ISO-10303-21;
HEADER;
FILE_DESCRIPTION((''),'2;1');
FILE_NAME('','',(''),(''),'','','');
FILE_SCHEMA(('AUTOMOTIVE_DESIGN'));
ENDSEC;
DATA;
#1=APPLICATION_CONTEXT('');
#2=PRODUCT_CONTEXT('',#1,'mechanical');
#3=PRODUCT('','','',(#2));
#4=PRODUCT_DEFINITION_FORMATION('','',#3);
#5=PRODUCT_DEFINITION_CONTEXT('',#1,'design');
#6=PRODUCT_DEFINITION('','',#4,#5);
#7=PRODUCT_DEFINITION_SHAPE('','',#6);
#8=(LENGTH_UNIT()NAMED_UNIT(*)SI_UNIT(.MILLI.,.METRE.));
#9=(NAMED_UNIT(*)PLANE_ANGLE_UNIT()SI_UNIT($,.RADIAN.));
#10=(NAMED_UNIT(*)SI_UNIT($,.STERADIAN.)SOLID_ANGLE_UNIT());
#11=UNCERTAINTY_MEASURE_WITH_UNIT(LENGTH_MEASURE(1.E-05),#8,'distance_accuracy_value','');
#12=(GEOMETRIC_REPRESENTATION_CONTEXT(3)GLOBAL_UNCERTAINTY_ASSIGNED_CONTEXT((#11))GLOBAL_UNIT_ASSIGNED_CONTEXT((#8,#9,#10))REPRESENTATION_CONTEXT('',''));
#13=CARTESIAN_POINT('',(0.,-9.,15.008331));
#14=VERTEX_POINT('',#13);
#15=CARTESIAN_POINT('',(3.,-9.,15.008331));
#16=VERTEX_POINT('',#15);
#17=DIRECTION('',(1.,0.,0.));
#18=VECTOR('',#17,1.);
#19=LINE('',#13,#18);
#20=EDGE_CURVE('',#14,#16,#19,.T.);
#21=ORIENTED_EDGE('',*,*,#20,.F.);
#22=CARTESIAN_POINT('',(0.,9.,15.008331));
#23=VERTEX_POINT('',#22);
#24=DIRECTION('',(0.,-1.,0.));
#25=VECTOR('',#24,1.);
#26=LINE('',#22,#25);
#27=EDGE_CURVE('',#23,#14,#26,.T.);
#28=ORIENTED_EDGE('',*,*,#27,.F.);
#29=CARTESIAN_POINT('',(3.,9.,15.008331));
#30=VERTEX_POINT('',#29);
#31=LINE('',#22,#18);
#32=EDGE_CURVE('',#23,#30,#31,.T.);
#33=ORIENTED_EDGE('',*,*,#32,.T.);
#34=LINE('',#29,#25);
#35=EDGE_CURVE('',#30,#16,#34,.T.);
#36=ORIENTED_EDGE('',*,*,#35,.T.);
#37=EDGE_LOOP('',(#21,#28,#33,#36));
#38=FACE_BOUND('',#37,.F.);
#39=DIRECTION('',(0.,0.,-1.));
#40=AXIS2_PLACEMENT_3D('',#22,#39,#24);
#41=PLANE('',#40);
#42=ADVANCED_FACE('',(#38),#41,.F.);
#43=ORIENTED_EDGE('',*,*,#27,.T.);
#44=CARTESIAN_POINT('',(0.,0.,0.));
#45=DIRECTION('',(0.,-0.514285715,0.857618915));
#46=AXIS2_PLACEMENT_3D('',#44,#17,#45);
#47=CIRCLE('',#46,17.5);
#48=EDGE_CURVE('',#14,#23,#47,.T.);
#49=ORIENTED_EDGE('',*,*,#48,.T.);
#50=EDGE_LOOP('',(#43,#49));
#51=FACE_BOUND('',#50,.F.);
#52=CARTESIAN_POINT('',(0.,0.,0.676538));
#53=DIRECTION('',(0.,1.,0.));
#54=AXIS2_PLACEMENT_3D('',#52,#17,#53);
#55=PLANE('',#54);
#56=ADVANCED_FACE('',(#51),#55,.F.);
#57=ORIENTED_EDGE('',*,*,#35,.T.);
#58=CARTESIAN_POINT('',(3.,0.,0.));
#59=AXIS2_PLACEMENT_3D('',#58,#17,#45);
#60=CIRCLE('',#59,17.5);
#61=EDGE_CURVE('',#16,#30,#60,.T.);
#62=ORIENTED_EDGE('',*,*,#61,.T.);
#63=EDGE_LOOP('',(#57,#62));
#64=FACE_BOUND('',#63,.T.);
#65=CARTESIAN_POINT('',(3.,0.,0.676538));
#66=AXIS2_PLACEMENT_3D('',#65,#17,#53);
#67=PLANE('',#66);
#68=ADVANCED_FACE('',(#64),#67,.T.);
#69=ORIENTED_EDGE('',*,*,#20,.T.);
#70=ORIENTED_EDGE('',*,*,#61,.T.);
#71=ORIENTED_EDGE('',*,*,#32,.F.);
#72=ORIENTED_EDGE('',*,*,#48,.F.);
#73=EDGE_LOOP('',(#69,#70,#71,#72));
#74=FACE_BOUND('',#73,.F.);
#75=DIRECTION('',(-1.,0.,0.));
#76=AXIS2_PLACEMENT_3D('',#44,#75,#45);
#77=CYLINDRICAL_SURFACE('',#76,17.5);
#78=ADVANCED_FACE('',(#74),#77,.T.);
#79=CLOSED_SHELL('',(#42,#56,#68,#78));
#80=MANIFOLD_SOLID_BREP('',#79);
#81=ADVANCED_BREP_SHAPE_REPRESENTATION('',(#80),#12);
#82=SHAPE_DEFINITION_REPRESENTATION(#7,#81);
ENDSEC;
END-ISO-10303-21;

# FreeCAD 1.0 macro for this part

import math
import FreeCAD as App
import Part
import Sketcher

V = App.Vector
Q = App.Units.Quantity

doc = App.newDocument("Part")
body = doc.addObject("PartDesign::Body", "Body")

# Sketch on YZ plane
sketch1 = body.newObject("Sketcher::SketchObject", "Sketch")
sketch1.AttachmentSupport = (doc.getObject("YZ_Plane"), [""])
sketch1.MapMode = "FlatFace"
sketch1.addGeometry(Part.LineSegment(V(9, 15, 0), V(-9, 15, 0)), False)
sketch1.addGeometry(Part.ArcOfCircle(Part.Circle(V(0, 0, 0), V(0, 0, 1), 17), math.radians(121), math.radians(419)), False)
sketch1.addConstraint(Sketcher.Constraint("Coincident", 0, 1, 1, 2))
sketch1.addConstraint(Sketcher.Constraint("Coincident", 1, 1, 0, 2))
sketch1.addConstraint(Sketcher.Constraint("Horizontal", 0))
sketch1.addConstraint(Sketcher.Constraint("Coincident", 1, 3, -1, 1))
sketch1.addConstraint(Sketcher.Constraint("Radius", 1, Q("17.5 mm")))
sketch1.addConstraint(Sketcher.Constraint("DistanceX", 0, 2, 0, 1, Q("18 mm")))
pad1 = body.newObject("PartDesign::Pad", "Pad")
pad1.Profile = sketch1
pad1.Length = 3

doc.recompute()
